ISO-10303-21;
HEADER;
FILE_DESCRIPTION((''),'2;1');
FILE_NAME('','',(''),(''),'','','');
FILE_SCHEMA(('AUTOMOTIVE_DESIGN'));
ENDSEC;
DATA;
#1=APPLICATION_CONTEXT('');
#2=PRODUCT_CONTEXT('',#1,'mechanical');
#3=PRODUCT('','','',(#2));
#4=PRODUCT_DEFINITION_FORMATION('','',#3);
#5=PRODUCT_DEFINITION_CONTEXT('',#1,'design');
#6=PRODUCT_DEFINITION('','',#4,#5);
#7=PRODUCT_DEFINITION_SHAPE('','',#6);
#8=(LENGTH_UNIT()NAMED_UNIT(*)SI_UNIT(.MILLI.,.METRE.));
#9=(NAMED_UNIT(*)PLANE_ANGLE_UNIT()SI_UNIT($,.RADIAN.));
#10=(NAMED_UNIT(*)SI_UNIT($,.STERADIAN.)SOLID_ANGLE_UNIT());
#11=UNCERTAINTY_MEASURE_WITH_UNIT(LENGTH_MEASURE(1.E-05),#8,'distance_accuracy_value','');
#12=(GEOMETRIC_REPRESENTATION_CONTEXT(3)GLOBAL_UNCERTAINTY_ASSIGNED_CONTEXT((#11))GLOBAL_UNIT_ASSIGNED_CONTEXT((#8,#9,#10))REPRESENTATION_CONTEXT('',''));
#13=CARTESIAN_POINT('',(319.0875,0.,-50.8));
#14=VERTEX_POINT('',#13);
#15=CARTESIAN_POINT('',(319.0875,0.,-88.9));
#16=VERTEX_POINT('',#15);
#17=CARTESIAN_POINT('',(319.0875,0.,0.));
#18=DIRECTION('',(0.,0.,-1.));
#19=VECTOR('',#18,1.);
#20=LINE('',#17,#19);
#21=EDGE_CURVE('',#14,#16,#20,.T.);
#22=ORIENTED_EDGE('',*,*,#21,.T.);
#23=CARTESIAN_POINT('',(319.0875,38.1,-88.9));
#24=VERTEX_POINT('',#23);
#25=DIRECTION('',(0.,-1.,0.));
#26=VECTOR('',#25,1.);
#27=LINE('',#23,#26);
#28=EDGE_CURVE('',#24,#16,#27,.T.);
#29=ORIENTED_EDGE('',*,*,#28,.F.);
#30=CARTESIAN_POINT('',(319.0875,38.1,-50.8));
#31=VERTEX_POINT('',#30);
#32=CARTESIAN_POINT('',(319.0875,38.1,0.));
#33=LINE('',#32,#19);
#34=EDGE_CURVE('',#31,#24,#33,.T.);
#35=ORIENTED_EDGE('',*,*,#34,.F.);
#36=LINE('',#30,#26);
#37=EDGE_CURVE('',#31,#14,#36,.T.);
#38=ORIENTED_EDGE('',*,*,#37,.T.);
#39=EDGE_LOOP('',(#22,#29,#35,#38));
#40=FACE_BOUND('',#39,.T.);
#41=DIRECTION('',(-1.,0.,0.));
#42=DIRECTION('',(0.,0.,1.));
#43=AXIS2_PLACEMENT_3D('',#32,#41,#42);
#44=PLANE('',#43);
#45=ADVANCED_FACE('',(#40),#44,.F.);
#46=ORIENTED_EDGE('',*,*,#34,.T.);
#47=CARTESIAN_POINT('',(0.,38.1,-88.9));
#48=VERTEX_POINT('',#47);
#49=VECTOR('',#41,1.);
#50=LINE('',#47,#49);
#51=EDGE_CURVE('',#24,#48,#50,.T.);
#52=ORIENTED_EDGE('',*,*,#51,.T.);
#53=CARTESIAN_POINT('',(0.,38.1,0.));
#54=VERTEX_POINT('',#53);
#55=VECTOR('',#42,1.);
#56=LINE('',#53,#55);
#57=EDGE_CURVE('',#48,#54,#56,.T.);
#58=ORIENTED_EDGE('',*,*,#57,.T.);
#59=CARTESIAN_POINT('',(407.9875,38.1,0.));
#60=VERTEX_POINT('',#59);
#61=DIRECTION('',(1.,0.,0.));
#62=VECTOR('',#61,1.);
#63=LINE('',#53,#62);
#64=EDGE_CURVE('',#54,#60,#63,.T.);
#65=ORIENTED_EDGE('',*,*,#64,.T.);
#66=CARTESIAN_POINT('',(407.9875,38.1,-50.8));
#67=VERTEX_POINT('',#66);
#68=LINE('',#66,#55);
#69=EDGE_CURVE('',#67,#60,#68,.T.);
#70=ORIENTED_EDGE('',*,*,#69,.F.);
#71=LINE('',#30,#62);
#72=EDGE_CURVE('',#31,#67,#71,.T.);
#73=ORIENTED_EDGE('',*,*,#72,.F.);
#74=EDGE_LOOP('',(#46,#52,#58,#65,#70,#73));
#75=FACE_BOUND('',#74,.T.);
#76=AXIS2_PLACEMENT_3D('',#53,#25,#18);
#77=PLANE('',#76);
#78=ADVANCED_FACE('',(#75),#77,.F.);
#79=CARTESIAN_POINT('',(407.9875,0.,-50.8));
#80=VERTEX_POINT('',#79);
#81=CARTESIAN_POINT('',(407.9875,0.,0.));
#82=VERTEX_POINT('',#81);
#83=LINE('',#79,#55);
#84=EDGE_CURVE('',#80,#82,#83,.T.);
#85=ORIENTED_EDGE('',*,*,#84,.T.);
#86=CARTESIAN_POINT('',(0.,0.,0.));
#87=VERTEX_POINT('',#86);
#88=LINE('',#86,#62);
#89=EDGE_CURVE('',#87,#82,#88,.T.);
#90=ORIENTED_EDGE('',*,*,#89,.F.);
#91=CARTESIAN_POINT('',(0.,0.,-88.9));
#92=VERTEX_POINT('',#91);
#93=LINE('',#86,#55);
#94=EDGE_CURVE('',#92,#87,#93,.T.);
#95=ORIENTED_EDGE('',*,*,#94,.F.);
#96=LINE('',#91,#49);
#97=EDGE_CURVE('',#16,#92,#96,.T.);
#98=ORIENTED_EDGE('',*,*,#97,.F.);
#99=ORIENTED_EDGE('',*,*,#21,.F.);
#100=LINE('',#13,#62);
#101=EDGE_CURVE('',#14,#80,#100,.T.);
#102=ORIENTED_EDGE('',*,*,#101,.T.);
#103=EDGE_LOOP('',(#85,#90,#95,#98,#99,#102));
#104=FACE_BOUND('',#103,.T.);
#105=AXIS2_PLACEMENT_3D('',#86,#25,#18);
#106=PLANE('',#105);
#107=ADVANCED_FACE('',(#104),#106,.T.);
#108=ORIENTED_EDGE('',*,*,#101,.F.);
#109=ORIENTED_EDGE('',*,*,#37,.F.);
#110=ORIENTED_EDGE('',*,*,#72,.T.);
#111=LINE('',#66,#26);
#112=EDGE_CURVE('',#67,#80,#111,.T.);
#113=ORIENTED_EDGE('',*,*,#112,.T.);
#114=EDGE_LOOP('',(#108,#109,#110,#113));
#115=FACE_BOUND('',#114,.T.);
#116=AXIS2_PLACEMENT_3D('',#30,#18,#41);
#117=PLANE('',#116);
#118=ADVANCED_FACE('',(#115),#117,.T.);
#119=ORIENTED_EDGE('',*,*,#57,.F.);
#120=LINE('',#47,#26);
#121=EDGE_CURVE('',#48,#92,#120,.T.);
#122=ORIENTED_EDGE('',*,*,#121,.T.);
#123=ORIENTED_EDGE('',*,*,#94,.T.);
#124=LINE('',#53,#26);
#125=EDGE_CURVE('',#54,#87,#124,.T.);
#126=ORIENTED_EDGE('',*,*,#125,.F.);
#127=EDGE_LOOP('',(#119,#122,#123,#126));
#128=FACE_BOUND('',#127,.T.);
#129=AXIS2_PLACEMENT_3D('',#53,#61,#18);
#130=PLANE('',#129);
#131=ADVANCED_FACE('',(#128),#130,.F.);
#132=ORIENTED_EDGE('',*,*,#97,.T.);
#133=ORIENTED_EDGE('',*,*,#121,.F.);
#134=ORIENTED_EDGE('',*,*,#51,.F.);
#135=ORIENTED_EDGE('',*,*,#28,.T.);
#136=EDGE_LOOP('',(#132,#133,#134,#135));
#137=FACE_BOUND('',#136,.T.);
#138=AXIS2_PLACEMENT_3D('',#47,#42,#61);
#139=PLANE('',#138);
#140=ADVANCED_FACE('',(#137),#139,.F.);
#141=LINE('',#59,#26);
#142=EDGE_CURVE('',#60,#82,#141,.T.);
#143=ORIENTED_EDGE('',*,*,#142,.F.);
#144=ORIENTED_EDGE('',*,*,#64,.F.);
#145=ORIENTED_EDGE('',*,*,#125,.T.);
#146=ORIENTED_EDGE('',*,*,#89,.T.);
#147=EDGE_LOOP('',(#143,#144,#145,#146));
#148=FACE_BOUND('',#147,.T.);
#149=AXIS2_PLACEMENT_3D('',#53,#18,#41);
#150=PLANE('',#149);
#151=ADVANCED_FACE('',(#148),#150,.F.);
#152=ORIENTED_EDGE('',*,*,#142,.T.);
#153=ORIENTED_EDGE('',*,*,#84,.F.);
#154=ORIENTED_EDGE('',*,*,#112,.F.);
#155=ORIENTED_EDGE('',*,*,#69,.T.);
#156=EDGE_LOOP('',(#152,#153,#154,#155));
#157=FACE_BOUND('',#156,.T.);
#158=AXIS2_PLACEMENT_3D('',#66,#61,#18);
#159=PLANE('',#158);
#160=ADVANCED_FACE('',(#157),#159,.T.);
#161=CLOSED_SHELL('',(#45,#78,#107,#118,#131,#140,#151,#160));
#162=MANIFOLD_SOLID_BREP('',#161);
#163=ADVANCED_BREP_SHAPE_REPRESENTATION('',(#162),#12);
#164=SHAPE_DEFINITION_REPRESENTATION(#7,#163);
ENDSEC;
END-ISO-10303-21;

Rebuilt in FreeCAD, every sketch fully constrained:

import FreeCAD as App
import Part
import Sketcher

V = App.Vector
Q = App.Units.Quantity


def add_polygon(sketch, points):
    """Adds a closed chain of lines whose ends are joined by coincident constraints."""
    first, n = sketch.GeometryCount, len(points)
    for a, b in zip(points, points[1:] + points[:1]):
        sketch.addGeometry(Part.LineSegment(App.Vector(*a, 0), App.Vector(*b, 0)), False)
    for i in range(n):
        sketch.addConstraint(Sketcher.Constraint("Coincident", first + i, 2, first + (i + 1) % n, 1))

doc = App.newDocument("Part")
body = doc.addObject("PartDesign::Body", "Body")

# Sketch on XZ plane
sketch1 = body.newObject("Sketcher::SketchObject", "Sketch")
sketch1.AttachmentSupport = (doc.getObject("XZ_Plane"), [""])
sketch1.MapMode = "FlatFace"
add_polygon(sketch1, [(0, -89), (0, 0), (319, 0), (319, -89)])  # lines 0-3
sketch1.addConstraint([
    Sketcher.Constraint("Vertical", 0),
    Sketcher.Constraint("Horizontal", 1),
    Sketcher.Constraint("Vertical", 2),
    Sketcher.Constraint("Horizontal", 3),
    Sketcher.Constraint("Coincident", 0, 2, -1, 1),
    Sketcher.Constraint("DistanceY", 0, 1, 0, 2, Q("3.5 in")),
    Sketcher.Constraint("DistanceX", 1, 1, 1, 2, Q("12.5625 in")),
])
pad1 = body.newObject("PartDesign::Pad", "Pad")
pad1.Profile = sketch1
pad1.Length = Q("1.5 in")
pad1.Reversed = True

# Sketch on XZ plane
sketch2 = body.newObject("Sketcher::SketchObject", "Sketch001")
sketch2.AttachmentSupport = (doc.getObject("XZ_Plane"), [""])
sketch2.MapMode = "FlatFace"
add_polygon(sketch2, [(319, 0), (319, -51), (408, -51), (408, 0)])  # lines 0-3
sketch2.addConstraint([
    Sketcher.Constraint("Vertical", 0),
    Sketcher.Constraint("Horizontal", 1),
    Sketcher.Constraint("Vertical", 2),
    Sketcher.Constraint("Horizontal", 3),
    Sketcher.Constraint("PointOnObject", 2, 2, -1),
    Sketcher.Constraint("DistanceY", 0, 2, 0, 1, Q("2 in")),
    Sketcher.Constraint("DistanceX", 1, 1, 1, 2, Q("3.5 in")),
    Sketcher.Constraint("DistanceX", -1, 1, 0, 2, Q("12.5625 in")),
])
pad2 = body.newObject("PartDesign::Pad", "Pad001")
pad2.Profile = sketch2
pad2.Length = Q("1.5 in")
pad2.Reversed = True

doc.recompute()
